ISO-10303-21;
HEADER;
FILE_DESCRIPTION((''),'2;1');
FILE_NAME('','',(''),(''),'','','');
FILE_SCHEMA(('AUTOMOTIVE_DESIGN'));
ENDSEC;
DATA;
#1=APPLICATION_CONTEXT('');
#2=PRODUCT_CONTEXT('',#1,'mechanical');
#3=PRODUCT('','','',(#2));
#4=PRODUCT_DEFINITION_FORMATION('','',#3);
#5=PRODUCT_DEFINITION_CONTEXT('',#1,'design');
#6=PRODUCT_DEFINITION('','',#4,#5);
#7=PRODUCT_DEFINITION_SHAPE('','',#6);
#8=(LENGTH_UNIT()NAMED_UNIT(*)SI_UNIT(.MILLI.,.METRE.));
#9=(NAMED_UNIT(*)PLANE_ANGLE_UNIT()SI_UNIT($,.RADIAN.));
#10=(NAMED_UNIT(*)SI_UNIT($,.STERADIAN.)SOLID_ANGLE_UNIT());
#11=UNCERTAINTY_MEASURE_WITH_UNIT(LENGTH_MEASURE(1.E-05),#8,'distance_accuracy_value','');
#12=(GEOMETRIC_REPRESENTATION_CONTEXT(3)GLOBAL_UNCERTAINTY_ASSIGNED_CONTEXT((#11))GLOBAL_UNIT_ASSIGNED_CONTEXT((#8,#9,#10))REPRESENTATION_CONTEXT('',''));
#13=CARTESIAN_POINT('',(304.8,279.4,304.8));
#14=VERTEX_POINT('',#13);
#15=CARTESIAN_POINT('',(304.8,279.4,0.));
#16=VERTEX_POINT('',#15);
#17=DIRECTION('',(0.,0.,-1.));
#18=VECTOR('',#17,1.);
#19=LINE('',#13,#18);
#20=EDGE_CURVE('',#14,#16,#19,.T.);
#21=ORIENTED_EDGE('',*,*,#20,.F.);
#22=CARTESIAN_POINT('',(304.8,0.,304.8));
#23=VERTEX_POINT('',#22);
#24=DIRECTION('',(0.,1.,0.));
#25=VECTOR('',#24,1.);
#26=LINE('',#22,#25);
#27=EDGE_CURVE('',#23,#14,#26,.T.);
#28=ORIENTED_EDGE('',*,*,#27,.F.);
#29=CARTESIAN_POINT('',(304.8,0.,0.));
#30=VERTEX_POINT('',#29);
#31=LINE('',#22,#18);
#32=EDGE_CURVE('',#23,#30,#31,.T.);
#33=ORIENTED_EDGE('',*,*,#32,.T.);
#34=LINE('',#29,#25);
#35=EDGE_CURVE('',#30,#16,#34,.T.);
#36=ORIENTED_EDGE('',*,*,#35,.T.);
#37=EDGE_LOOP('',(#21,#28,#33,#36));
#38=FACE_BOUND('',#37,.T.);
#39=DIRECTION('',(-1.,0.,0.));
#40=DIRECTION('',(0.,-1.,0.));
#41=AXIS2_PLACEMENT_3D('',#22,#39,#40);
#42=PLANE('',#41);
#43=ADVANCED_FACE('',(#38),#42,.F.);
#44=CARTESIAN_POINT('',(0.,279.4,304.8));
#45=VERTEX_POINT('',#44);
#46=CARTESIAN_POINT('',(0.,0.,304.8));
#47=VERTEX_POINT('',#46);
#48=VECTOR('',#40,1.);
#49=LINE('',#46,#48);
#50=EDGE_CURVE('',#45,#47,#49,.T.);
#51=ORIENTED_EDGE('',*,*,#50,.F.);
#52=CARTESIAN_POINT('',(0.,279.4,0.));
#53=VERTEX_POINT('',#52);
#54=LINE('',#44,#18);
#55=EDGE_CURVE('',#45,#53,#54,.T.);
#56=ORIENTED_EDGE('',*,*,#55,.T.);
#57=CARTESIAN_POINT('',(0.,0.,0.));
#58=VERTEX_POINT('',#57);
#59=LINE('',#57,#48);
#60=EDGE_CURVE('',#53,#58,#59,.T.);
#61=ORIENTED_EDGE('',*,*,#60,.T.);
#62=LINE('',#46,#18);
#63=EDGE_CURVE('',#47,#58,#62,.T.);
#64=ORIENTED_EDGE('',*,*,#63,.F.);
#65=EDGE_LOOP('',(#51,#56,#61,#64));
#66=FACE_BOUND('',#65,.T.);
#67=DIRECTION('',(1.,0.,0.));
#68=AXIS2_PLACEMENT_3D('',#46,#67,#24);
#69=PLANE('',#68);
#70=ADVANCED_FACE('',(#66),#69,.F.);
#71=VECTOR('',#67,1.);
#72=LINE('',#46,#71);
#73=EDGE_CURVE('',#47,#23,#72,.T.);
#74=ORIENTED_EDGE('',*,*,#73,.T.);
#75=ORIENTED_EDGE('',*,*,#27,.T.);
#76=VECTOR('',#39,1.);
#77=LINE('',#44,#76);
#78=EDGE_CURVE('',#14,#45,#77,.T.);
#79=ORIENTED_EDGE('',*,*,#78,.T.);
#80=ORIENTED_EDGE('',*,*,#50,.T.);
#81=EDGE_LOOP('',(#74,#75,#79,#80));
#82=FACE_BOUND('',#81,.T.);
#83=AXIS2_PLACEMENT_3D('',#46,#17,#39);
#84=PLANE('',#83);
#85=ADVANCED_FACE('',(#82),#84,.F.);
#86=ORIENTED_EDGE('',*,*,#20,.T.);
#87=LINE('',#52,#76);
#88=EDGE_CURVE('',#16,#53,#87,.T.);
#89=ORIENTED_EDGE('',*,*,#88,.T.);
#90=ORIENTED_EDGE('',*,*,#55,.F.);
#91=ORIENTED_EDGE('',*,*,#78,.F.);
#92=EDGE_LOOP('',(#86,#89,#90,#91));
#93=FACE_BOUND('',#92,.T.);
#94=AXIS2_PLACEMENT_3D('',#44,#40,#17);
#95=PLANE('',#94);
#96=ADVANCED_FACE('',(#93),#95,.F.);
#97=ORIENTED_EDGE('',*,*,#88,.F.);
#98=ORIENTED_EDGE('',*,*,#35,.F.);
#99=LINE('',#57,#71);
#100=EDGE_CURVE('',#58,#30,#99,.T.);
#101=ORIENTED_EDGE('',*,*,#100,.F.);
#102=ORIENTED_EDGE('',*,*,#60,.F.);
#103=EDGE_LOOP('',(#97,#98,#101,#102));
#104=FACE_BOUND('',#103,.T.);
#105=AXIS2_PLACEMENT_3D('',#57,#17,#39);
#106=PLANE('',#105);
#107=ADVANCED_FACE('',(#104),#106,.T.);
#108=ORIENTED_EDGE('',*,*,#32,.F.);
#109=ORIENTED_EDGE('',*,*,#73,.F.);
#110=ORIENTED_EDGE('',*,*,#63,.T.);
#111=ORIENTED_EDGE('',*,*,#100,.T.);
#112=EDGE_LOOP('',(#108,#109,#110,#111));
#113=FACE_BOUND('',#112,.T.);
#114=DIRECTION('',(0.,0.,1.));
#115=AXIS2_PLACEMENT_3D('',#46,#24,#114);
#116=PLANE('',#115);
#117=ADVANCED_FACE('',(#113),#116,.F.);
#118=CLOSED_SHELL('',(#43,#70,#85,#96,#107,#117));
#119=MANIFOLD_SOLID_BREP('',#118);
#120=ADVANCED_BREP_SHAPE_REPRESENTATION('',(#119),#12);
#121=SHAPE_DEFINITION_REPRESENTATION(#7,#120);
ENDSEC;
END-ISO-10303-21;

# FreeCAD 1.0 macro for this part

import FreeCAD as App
import Part
import Sketcher
Q = App.Units.Quantity


def add_polygon(sketch, points):
    """Adds a closed chain of lines whose ends are joined by coincident constraints."""
    first, n = sketch.GeometryCount, len(points)
    for a, b in zip(points, points[1:] + points[:1]):
        sketch.addGeometry(Part.LineSegment(App.Vector(*a, 0), App.Vector(*b, 0)), False)
    for i in range(n):
        sketch.addConstraint(Sketcher.Constraint("Coincident", first + i, 2, first + (i + 1) % n, 1))

doc = App.newDocument("Part")
body = doc.addObject("PartDesign::Body", "Body")

# Sketch on XY plane
sketch1 = body.newObject("Sketcher::SketchObject", "Sketch")
sketch1.AttachmentSupport = (doc.getObject("XY_Plane"), [""])
sketch1.MapMode = "FlatFace"
add_polygon(sketch1, [(0, 279), (0, 0), (305, 0), (305, 279)])  # lines 0-3
sketch1.addConstraint([
    Sketcher.Constraint("Vertical", 0),
    Sketcher.Constraint("Horizontal", 1),
    Sketcher.Constraint("Vertical", 2),
    Sketcher.Constraint("Horizontal", 3),
    Sketcher.Constraint("Coincident", 0, 2, -1, 1),
    Sketcher.Constraint("DistanceX", 1, 1, 1, 2, Q("12 in")),
    Sketcher.Constraint("DistanceY", 0, 2, 0, 1, Q("11 in")),
])
pad1 = body.newObject("PartDesign::Pad", "Pad")
pad1.Profile = sketch1
pad1.Length = Q("12 in")

doc.recompute()
